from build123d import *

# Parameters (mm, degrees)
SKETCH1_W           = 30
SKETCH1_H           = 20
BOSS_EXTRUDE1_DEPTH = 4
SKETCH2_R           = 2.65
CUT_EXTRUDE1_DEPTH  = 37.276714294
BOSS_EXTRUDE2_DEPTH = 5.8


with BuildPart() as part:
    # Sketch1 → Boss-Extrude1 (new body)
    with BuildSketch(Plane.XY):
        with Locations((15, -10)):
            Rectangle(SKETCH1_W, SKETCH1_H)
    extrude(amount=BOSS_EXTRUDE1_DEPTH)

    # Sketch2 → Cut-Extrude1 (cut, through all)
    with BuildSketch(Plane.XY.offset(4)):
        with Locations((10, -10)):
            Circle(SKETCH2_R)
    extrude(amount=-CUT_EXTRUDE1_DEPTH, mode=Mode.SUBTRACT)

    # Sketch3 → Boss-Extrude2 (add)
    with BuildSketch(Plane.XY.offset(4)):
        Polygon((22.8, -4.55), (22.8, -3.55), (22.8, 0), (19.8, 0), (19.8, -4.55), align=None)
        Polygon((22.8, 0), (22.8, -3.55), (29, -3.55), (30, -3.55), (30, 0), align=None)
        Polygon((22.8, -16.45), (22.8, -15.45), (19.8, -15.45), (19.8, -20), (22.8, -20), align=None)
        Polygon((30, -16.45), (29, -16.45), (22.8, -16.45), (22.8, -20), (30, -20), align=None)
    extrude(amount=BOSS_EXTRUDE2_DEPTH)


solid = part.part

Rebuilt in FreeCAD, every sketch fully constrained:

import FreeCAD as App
import Part
import Sketcher
from FreeCAD import Vector
Q = App.Units.Quantity

doc = App.newDocument("Part")
params = doc.addObject("Spreadsheet::Sheet", "Params")
for row, (alias, value) in enumerate([
    ("sketch1_width", "30 mm"),
    ("sketch1_height", "20 mm"),
    ("pad1_length", "4 mm"),
    ("sketch2_diameter", "5.3 mm"),
    ("sketch3_width", "3 mm"),
    ("sketch3_height", "1 mm"),
    ("sketch3_width2", "7.2 mm"),
    ("sketch3_height2", "3.55 mm"),
    ("pad2_length", "5.8 mm"),
], start=1):
    params.set(f"A{row}", alias)
    params.set(f"B{row}", "=" + value)
    params.setAlias(f"B{row}", alias)

body = doc.addObject("PartDesign::Body", "Body")

# Sketch on XY plane
sketch1 = body.newObject("Sketcher::SketchObject", "Sketch")
sketch1.AttachmentSupport = (doc.getObject("XY_Plane"), [""])
sketch1.MapMode = "FlatFace"
sketch1.addGeometry([
    Part.LineSegment(Vector(0, 0, 0), Vector(0, -20, 0)),
    Part.LineSegment(Vector(0, -20, 0), Vector(30, -20, 0)),
    Part.LineSegment(Vector(30, -20, 0), Vector(30, 0, 0)),
    Part.LineSegment(Vector(30, 0, 0), Vector(0, 0, 0)),
], False)
sketch1.addConstraint([
    Sketcher.Constraint("Coincident", 0, 2, 1, 1),
    Sketcher.Constraint("Coincident", 1, 2, 2, 1),
    Sketcher.Constraint("Coincident", 2, 2, 3, 1),
    Sketcher.Constraint("Coincident", 3, 2, 0, 1),
    Sketcher.Constraint("Vertical", 0),
    Sketcher.Constraint("Horizontal", 1),
    Sketcher.Constraint("Vertical", 2),
    Sketcher.Constraint("Horizontal", 3),
    Sketcher.Constraint("Coincident", 3, 2, -1, 1),
    Sketcher.Constraint("DistanceX", 1, 1, 1, 2, Q("30 mm")),
    Sketcher.Constraint("DistanceY", 0, 2, 0, 1, Q("20 mm")),
])
sketch1.setExpression("Constraints[9]", "Params.sketch1_width")
sketch1.setExpression("Constraints[10]", "Params.sketch1_height")
pad1 = body.newObject("PartDesign::Pad", "Pad")
pad1.Profile = sketch1
pad1.setExpression("Length", "Params.pad1_length")

# Sketch on XY plane
sketch2 = body.newObject("Sketcher::SketchObject", "Sketch001")
sketch2.AttachmentSupport = (doc.getObject("XY_Plane"), [""])
sketch2.MapMode = "FlatFace"
sketch2.AttachmentOffset = App.Placement(Vector(0, 0, 4), App.Rotation())
sketch2.addGeometry(Part.Circle(Vector(10, -10, 0), Vector(0, 0, 1), 2.6), False)
sketch2.addConstraint([
    Sketcher.Constraint("Diameter", 0, Q("5.3 mm")),
    Sketcher.Constraint("DistanceX", -1, 1, 0, 3, Q("10 mm")),
    Sketcher.Constraint("DistanceY", 0, 3, -1, 1, Q("10 mm")),
])
sketch2.setExpression("Constraints[0]", "Params.sketch2_diameter")
pocket1 = body.newObject("PartDesign::Pocket", "Pocket")
pocket1.Profile = sketch2
pocket1.Type = "ThroughAll"

# Sketch on XY plane
sketch3 = body.newObject("Sketcher::SketchObject", "Sketch002")
sketch3.AttachmentSupport = (doc.getObject("XY_Plane"), [""])
sketch3.MapMode = "FlatFace"
sketch3.AttachmentOffset = App.Placement(Vector(0, 0, 4), App.Rotation())
sketch3.addGeometry([
    Part.LineSegment(Vector(22.8, -4.5, 0), Vector(22.8, -3.5, 0)),  # 0
    Part.LineSegment(Vector(22.8, -3.5, 0), Vector(30, -3.5, 0)),  # 1
    Part.LineSegment(Vector(30, -3.5, 0), Vector(30, 0, 0)),  # 2
    Part.LineSegment(Vector(30, 0, 0), Vector(19.8, 0, 0)),  # 3
    Part.LineSegment(Vector(19.8, 0, 0), Vector(19.8, -4.5, 0)),  # 4
    Part.LineSegment(Vector(19.8, -4.5, 0), Vector(22.8, -4.5, 0)),  # 5
    Part.LineSegment(Vector(22.8, -15.4, 0), Vector(19.8, -15.4, 0)),  # 6
    Part.LineSegment(Vector(19.8, -15.4, 0), Vector(19.8, -20, 0)),  # 7
    Part.LineSegment(Vector(19.8, -20, 0), Vector(30, -20, 0)),  # 8
    Part.LineSegment(Vector(30, -20, 0), Vector(30, -16.4, 0)),  # 9
    Part.LineSegment(Vector(30, -16.4, 0), Vector(22.8, -16.4, 0)),  # 10
    Part.LineSegment(Vector(22.8, -16.4, 0), Vector(22.8, -15.4, 0)),  # 11
], False)
sketch3.addConstraint([
    Sketcher.Constraint("Coincident", 0, 2, 1, 1),
    Sketcher.Constraint("Coincident", 1, 2, 2, 1),
    Sketcher.Constraint("Coincident", 2, 2, 3, 1),
    Sketcher.Constraint("Coincident", 3, 2, 4, 1),
    Sketcher.Constraint("Coincident", 4, 2, 5, 1),
    Sketcher.Constraint("Coincident", 5, 2, 0, 1),
    Sketcher.Constraint("Coincident", 6, 2, 7, 1),
    Sketcher.Constraint("Coincident", 7, 2, 8, 1),
    Sketcher.Constraint("Coincident", 8, 2, 9, 1),
    Sketcher.Constraint("Coincident", 9, 2, 10, 1),
    Sketcher.Constraint("Coincident", 10, 2, 11, 1),
    Sketcher.Constraint("Coincident", 11, 2, 6, 1),
    Sketcher.Constraint("Vertical", 0),
    Sketcher.Constraint("Horizontal", 1),
    Sketcher.Constraint("Vertical", 2),
    Sketcher.Constraint("Horizontal", 3),
    Sketcher.Constraint("Vertical", 4),
    Sketcher.Constraint("Horizontal", 5),
    Sketcher.Constraint("Horizontal", 6),
    Sketcher.Constraint("Vertical", 7),
    Sketcher.Constraint("Horizontal", 8),
    Sketcher.Constraint("Vertical", 9),
    Sketcher.Constraint("Horizontal", 10),
    Sketcher.Constraint("Vertical", 11),
    Sketcher.Constraint("PointOnObject", 2, 2, -1),
    Sketcher.Constraint("Vertical", 4, 2, 6, 2),
    Sketcher.Constraint("Vertical", 2, 2, 8, 2),
    Sketcher.Constraint("Vertical", 5, 2, 10, 2),
    Sketcher.Constraint("Equal", 4, 7),
    Sketcher.Constraint("Equal", 2, 9),
    Sketcher.Constraint("DistanceX", 5, 1, 5, 2, Q("3 mm")),
    Sketcher.Constraint("DistanceY", 0, 1, 0, 2, Q("1 mm")),
    Sketcher.Constraint("DistanceX", 1, 1, 1, 2, Q("7.2 mm")),
    Sketcher.Constraint("DistanceX", -1, 1, 1, 2, Q("30 mm")),
    Sketcher.Constraint("DistanceY", 7, 2, -1, 1, Q("20 mm")),
    Sketcher.Constraint("DistanceY", 2, 1, 2, 2, Q("3.55 mm")),
])
sketch3.setExpression("Constraints[30]", "Params.sketch3_width")
sketch3.setExpression("Constraints[31]", "Params.sketch3_height")
sketch3.setExpression("Constraints[32]", "Params.sketch3_width2")
sketch3.setExpression("Constraints[35]", "Params.sketch3_height2")
pad2 = body.newObject("PartDesign::Pad", "Pad001")
pad2.Profile = sketch3
pad2.setExpression("Length", "Params.pad2_length")

doc.recompute()
